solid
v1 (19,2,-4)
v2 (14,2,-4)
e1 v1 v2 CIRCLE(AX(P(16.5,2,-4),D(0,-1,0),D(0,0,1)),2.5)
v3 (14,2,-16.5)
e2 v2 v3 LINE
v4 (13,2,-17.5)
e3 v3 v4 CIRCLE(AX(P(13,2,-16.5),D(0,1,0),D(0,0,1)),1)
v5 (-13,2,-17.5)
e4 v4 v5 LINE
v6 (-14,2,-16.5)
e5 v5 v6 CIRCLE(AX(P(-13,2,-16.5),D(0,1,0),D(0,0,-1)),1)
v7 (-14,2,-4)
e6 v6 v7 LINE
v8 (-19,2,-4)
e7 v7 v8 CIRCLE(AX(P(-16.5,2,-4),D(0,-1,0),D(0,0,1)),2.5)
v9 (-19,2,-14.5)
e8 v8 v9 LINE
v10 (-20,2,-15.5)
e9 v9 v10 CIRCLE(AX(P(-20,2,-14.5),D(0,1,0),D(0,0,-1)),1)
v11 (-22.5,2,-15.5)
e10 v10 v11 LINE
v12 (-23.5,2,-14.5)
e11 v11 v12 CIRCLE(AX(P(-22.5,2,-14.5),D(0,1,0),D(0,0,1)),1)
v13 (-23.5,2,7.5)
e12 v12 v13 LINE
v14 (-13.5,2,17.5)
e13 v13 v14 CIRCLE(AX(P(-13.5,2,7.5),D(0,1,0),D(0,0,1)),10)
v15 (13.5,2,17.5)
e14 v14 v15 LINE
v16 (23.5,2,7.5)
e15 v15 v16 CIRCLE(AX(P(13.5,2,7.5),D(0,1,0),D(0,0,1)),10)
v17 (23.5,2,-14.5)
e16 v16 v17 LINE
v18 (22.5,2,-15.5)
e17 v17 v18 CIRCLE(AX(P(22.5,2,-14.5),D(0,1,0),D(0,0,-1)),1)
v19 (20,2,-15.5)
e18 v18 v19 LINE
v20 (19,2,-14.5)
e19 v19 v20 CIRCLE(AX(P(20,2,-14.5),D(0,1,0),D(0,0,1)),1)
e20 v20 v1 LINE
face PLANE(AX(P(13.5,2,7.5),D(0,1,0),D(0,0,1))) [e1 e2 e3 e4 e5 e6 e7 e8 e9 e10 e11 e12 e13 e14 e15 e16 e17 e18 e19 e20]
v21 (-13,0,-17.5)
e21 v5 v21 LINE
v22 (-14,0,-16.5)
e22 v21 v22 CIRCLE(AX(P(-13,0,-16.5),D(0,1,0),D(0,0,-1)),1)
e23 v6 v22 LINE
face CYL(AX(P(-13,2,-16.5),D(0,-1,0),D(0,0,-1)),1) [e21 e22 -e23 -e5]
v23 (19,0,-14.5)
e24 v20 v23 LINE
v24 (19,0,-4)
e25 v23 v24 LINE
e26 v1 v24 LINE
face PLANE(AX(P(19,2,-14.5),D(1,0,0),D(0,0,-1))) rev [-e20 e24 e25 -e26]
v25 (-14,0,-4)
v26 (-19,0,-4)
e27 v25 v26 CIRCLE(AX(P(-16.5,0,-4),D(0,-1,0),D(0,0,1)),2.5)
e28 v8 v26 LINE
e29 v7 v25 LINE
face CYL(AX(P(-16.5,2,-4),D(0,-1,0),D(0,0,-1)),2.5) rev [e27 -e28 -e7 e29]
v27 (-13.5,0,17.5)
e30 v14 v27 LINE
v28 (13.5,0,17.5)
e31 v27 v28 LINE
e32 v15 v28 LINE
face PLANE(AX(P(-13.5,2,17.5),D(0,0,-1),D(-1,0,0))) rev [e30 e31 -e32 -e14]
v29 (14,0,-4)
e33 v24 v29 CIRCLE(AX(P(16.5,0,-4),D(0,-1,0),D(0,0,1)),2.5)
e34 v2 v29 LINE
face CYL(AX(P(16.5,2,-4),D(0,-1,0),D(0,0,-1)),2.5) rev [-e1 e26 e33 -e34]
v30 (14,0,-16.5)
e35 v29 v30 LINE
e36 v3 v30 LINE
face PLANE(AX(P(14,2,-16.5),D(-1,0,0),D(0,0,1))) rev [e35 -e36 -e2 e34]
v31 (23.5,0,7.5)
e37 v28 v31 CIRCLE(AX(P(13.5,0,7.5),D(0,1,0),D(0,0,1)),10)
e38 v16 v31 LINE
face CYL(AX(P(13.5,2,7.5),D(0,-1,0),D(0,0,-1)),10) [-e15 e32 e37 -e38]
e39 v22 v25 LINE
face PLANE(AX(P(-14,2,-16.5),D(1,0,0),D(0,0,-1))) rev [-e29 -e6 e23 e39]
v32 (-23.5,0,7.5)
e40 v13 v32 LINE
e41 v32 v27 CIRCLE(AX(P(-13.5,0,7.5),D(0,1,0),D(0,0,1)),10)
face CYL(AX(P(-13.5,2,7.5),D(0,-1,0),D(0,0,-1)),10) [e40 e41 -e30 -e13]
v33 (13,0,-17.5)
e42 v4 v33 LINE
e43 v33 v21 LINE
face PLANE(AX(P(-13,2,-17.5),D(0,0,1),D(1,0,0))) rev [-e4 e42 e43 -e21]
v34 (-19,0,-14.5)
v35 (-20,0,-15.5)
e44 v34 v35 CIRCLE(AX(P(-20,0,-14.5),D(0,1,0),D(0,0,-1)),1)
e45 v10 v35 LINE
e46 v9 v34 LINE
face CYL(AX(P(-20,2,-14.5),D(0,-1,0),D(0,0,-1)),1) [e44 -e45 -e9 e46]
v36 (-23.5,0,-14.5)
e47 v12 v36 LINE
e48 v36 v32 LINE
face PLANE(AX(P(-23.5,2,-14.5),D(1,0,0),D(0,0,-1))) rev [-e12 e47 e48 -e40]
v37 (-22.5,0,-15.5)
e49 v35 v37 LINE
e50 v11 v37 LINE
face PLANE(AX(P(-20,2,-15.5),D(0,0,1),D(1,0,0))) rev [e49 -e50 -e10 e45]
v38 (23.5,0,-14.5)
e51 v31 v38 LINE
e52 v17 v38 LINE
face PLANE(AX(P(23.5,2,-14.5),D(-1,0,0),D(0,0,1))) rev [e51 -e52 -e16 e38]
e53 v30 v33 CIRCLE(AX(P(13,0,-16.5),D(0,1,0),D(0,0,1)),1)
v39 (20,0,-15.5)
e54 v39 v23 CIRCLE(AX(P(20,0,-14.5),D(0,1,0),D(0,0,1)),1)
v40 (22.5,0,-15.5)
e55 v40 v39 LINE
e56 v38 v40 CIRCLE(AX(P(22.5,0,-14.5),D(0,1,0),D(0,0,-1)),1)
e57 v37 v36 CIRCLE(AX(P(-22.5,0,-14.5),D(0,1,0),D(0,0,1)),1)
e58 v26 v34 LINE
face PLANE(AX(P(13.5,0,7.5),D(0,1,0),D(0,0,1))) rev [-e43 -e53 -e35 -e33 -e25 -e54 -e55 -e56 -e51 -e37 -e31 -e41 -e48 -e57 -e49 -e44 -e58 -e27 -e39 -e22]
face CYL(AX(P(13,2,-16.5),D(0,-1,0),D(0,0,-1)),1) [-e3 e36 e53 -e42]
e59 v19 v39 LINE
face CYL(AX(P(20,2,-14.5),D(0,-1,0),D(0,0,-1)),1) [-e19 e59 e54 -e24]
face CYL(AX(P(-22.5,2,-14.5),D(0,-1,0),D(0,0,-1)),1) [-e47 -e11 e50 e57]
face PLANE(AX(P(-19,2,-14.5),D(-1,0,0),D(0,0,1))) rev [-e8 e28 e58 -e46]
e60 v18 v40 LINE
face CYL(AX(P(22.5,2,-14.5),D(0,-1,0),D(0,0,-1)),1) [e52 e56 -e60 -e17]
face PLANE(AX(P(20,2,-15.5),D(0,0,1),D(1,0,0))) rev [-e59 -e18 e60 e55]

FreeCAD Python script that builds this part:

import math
import FreeCAD as App
import Part
import Sketcher
from FreeCAD import Vector
Q = App.Units.Quantity

doc = App.newDocument("Part")
body = doc.addObject("PartDesign::Body", "Body")

# Sketch on XZ plane
sketch1 = body.newObject("Sketcher::SketchObject", "Sketch")
sketch1.AttachmentSupport = (doc.getObject("XZ_Plane"), [""])
sketch1.MapMode = "FlatFace"
sketch1.addGeometry([
    Part.LineSegment(Vector(-23.5, -14.5, 0), Vector(-23.5, 7.5, 0)),  # 0
    Part.ArcOfCircle(Part.Circle(Vector(-13.5, 7.5, 0), Vector(0, 0, 1), 10), math.radians(90), math.radians(180)),  # 1
    Part.LineSegment(Vector(-13.5, 17.5, 0), Vector(13.5, 17.5, 0)),  # 2
    Part.ArcOfCircle(Part.Circle(Vector(13.5, 7.5, 0), Vector(0, 0, 1), 10), math.radians(0), math.radians(90)),  # 3
    Part.LineSegment(Vector(23.5, 7.5, 0), Vector(23.5, -14.5, 0)),  # 4
    Part.ArcOfCircle(Part.Circle(Vector(22.5, -14.5, 0), Vector(0, 0, 1), 1), math.radians(-90), math.radians(0)),  # 5
    Part.LineSegment(Vector(22.5, -15.5, 0), Vector(20, -15.5, 0)),  # 6
    Part.ArcOfCircle(Part.Circle(Vector(20, -14.5, 0), Vector(0, 0, 1), 1), math.radians(-180), math.radians(-90)),  # 7
    Part.LineSegment(Vector(19, -14.5, 0), Vector(19, -4, 0)),  # 8
    Part.ArcOfCircle(Part.Circle(Vector(16.5, -4, 0), Vector(0, 0, 1), 2.5), math.radians(0), math.radians(180)),  # 9
    Part.LineSegment(Vector(14, -4, 0), Vector(14, -16.5, 0)),  # 10
    Part.ArcOfCircle(Part.Circle(Vector(13, -16.5, 0), Vector(0, 0, 1), 1), math.radians(-90), math.radians(0)),  # 11
    Part.LineSegment(Vector(13, -17.5, 0), Vector(-13, -17.5, 0)),  # 12
    Part.ArcOfCircle(Part.Circle(Vector(-13, -16.5, 0), Vector(0, 0, 1), 1), math.radians(-180), math.radians(-90)),  # 13
    Part.LineSegment(Vector(-14, -16.5, 0), Vector(-14, -4, 0)),  # 14
    Part.ArcOfCircle(Part.Circle(Vector(-16.5, -4, 0), Vector(0, 0, 1), 2.5), math.radians(0), math.radians(180)),  # 15
    Part.LineSegment(Vector(-19, -4, 0), Vector(-19, -14.5, 0)),  # 16
    Part.ArcOfCircle(Part.Circle(Vector(-20, -14.5, 0), Vector(0, 0, 1), 1), math.radians(-90), math.radians(0)),  # 17
    Part.LineSegment(Vector(-20, -15.5, 0), Vector(-22.5, -15.5, 0)),  # 18
    Part.ArcOfCircle(Part.Circle(Vector(-22.5, -14.5, 0), Vector(0, 0, 1), 1), math.radians(-180), math.radians(-90)),  # 19
], False)
sketch1.addConstraint([
    Sketcher.Constraint("Tangent", 0, 2, 1, 2),
    Sketcher.Constraint("Tangent", 1, 1, 2, 1),
    Sketcher.Constraint("Tangent", 2, 2, 3, 2),
    Sketcher.Constraint("Tangent", 3, 1, 4, 1),
    Sketcher.Constraint("Tangent", 4, 2, 5, 2),
    Sketcher.Constraint("Tangent", 5, 1, 6, 1),
    Sketcher.Constraint("Tangent", 6, 2, 7, 2),
    Sketcher.Constraint("Tangent", 7, 1, 8, 1),
    Sketcher.Constraint("Tangent", 8, 2, 9, 1),
    Sketcher.Constraint("Tangent", 9, 2, 10, 1),
    Sketcher.Constraint("Tangent", 10, 2, 11, 2),
    Sketcher.Constraint("Tangent", 11, 1, 12, 1),
    Sketcher.Constraint("Tangent", 12, 2, 13, 2),
    Sketcher.Constraint("Tangent", 13, 1, 14, 1),
    Sketcher.Constraint("Tangent", 14, 2, 15, 1),
    Sketcher.Constraint("Tangent", 15, 2, 16, 1),
    Sketcher.Constraint("Tangent", 16, 2, 17, 2),
    Sketcher.Constraint("Tangent", 17, 1, 18, 1),
    Sketcher.Constraint("Tangent", 18, 2, 19, 2),
    Sketcher.Constraint("Tangent", 19, 1, 0, 1),
    Sketcher.Constraint("Vertical", 0),
    Sketcher.Constraint("Horizontal", 2),
    Sketcher.Constraint("Vertical", 4),
    Sketcher.Constraint("Horizontal", 6),
    Sketcher.Constraint("Vertical", 8),
    Sketcher.Constraint("Vertical", 10),
    Sketcher.Constraint("Horizontal", 12),
    Sketcher.Constraint("Vertical", 14),
    Sketcher.Constraint("Vertical", 16),
    Sketcher.Constraint("Horizontal", 18),
    Sketcher.Constraint("Equal", 1, 3),
    Sketcher.Constraint("Equal", 5, 7),
    Sketcher.Constraint("Equal", 7, 11),
    Sketcher.Constraint("Equal", 11, 13),
    Sketcher.Constraint("Equal", 9, 15),
    Sketcher.Constraint("Equal", 13, 17),
    Sketcher.Constraint("Equal", 17, 19),
    Sketcher.Constraint("Symmetric", 9, 3, 15, 3, -2),
    Sketcher.Constraint("Symmetric", 5, 3, 19, 3, -2),
    Sketcher.Constraint("Radius", 1, Q("10 mm")),
    Sketcher.Constraint("Radius", 5, Q("1 mm")),
    Sketcher.Constraint("Radius", 9, Q("2.5 mm")),
    Sketcher.Constraint("DistanceX", 2, 1, 2, 2, Q("27 mm")),
    Sketcher.Constraint("DistanceX", 12, 2, 12, 1, Q("26 mm")),
    Sketcher.Constraint("DistanceY", 0, 1, 0, 2, Q("22 mm")),
    Sketcher.Constraint("DistanceY", 8, 1, 8, 2, Q("10.5 mm")),
    Sketcher.Constraint("DistanceY", 10, 2, 10, 1, Q("12.5 mm")),
    Sketcher.Constraint("DistanceY", 9, 3, -1, 1, Q("4 mm")),
])
pad1 = body.newObject("PartDesign::Pad", "Pad")
pad1.Profile = sketch1
pad1.Length = 2
pad1.Reversed = True

doc.recompute()
